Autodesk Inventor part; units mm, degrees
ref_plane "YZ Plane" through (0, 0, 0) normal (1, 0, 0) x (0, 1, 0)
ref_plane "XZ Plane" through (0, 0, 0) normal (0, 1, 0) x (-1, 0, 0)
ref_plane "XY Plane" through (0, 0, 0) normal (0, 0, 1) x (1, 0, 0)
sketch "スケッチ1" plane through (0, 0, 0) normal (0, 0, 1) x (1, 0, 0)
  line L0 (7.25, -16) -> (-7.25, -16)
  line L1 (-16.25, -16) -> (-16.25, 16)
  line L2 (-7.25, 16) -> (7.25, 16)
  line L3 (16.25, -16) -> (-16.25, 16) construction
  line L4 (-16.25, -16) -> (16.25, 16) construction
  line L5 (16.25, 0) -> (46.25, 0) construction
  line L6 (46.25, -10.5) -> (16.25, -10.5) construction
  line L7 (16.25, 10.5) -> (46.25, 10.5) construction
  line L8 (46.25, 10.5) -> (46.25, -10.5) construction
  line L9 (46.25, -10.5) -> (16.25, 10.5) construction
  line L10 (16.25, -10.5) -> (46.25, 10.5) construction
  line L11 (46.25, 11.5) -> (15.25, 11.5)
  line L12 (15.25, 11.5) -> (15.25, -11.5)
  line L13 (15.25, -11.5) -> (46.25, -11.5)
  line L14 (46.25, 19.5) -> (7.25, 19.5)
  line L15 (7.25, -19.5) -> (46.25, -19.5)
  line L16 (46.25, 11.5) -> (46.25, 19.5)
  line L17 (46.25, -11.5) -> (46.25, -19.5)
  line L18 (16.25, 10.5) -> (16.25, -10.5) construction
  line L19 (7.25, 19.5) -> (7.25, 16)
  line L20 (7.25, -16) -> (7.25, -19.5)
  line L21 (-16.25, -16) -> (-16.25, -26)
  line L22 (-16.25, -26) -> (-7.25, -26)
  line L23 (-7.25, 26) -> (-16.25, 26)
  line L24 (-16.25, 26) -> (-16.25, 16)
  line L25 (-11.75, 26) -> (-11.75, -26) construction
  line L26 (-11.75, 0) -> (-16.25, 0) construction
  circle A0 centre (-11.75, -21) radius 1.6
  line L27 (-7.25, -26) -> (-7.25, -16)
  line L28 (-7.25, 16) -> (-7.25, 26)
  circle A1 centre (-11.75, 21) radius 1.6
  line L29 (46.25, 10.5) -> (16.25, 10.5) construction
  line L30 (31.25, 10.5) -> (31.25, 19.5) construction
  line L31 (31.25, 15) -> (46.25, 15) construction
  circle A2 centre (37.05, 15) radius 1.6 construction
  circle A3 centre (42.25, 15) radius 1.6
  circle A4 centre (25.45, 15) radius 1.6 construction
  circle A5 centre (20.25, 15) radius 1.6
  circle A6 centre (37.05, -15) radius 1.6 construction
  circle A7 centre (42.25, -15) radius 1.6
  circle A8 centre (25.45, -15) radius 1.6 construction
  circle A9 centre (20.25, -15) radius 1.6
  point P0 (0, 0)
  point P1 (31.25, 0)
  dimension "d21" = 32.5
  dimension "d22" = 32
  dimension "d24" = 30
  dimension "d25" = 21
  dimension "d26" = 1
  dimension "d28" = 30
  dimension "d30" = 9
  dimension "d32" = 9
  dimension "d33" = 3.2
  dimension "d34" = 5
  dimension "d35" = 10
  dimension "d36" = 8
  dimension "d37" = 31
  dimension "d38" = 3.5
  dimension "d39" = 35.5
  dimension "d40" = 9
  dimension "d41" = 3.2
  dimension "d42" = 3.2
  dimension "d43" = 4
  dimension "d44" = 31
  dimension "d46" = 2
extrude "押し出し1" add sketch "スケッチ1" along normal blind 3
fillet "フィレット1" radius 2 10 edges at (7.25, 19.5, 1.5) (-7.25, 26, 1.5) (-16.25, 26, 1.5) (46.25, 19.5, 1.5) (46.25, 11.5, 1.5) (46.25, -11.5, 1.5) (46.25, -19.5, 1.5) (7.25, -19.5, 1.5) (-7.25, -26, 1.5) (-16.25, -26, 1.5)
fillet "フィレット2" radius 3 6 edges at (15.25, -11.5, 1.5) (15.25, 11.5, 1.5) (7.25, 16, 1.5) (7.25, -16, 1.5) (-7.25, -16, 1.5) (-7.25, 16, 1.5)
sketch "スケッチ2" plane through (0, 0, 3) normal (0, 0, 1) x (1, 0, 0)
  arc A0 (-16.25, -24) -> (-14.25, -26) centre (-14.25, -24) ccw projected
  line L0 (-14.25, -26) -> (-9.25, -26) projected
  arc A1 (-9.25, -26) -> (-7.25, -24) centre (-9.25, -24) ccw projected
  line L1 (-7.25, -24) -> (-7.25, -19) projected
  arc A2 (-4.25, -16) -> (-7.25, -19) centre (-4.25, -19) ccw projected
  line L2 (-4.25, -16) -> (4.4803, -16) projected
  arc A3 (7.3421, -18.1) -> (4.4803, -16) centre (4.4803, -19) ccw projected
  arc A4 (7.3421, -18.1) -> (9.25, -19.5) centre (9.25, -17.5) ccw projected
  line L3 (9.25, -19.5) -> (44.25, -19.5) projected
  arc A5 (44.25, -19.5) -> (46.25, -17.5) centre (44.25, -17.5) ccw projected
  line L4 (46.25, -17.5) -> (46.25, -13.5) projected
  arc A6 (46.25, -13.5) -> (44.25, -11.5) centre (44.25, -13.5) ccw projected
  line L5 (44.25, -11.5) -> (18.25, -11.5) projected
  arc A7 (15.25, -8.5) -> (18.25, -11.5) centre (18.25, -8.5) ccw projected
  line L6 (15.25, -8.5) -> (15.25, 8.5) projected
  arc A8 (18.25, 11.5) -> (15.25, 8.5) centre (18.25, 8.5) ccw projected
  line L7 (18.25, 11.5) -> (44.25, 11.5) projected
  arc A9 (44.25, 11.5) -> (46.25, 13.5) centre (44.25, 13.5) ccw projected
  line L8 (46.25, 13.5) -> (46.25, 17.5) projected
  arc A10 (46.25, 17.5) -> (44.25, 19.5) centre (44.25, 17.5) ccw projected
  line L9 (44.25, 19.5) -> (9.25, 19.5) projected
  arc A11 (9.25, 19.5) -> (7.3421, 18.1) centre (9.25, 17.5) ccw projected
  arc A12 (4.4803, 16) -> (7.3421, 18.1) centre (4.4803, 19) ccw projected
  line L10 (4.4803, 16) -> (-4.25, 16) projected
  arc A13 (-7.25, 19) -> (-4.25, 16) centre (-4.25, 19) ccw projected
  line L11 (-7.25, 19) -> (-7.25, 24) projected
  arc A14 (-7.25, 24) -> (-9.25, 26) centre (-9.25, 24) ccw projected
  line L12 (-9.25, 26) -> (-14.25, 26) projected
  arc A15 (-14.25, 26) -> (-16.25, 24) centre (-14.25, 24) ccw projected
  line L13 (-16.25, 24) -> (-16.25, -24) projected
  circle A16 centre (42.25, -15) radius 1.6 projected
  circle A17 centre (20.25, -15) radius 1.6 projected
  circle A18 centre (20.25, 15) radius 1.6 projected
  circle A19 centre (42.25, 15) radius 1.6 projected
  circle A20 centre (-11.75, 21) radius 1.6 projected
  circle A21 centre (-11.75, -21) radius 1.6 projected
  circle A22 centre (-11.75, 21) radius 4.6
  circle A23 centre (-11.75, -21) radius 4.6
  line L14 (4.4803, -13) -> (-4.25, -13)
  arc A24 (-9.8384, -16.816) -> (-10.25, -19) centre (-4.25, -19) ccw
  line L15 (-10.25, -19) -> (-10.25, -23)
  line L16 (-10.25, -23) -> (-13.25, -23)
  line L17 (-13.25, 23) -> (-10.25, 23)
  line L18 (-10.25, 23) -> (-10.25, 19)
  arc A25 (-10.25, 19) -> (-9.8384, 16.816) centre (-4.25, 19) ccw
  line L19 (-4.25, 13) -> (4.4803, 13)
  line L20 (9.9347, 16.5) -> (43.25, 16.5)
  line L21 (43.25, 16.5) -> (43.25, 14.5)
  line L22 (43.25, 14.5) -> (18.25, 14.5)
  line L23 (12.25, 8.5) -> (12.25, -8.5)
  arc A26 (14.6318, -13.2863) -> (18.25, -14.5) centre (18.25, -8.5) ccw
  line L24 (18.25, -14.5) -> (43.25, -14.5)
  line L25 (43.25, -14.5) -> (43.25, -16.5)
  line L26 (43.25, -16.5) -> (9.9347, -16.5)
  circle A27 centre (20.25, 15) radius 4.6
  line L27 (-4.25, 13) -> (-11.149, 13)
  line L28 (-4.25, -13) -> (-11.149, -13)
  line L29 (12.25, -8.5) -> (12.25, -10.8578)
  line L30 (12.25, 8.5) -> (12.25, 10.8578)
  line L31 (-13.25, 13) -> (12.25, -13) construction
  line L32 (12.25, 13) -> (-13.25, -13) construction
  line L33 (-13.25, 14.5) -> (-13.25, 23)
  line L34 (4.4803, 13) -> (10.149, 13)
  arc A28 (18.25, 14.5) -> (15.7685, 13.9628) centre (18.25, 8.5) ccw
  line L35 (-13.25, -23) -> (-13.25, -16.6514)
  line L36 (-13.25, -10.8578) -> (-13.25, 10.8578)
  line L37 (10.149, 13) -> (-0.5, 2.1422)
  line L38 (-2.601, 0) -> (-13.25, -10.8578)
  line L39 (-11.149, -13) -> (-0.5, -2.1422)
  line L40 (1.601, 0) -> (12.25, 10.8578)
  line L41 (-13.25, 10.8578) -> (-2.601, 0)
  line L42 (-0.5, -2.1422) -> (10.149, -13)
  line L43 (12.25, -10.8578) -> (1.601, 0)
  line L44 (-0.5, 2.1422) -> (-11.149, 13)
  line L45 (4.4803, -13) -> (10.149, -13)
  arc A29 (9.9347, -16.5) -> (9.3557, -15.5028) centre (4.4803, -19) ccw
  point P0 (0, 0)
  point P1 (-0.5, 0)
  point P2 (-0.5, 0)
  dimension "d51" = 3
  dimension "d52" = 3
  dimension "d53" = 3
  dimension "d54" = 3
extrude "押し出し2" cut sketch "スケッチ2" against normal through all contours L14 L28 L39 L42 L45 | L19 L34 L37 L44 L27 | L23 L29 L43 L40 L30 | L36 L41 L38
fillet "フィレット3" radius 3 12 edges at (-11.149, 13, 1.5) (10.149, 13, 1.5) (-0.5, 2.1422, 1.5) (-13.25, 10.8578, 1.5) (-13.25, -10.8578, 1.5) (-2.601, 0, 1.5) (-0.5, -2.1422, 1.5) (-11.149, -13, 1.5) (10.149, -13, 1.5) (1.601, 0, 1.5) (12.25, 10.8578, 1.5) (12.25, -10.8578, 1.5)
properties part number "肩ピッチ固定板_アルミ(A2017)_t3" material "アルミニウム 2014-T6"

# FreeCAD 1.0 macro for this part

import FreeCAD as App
import Part
import Sketcher


def edges_at(feature, points):
    """Names of the edges that pass closest to the given points."""
    edges = feature.Shape.Edges
    near = lambda p: min(range(len(edges)), key=lambda i: edges[i].distToShape(Part.Vertex(*p))[0])
    return sorted({f"Edge{near(p) + 1}" for p in points})


def add_polygon(sketch, points):
    """Adds a closed chain of lines whose ends are joined by coincident constraints."""
    first, n = sketch.GeometryCount, len(points)
    for a, b in zip(points, points[1:] + points[:1]):
        sketch.addGeometry(Part.LineSegment(App.Vector(*a, 0), App.Vector(*b, 0)), False)
    for i in range(n):
        sketch.addConstraint(Sketcher.Constraint("Coincident", first + i, 2, first + (i + 1) % n, 1))

doc = App.newDocument("Part")
body = doc.addObject("PartDesign::Body", "Body")

# Sketch on XY plane
sketch1 = body.newObject("Sketcher::SketchObject", "Sketch")
sketch1.AttachmentSupport = (doc.getObject("XY_Plane"), [""])
sketch1.MapMode = "FlatFace"
add_polygon(sketch1, [(-7.2, -16), (7.2, -16), (7.2, -19.5), (46.2, -19.5), (46.2, -11.5), (15.2, -11.5), (15.2, 11.5), (46.2, 11.5), (46.2, 19.5), (7.2, 19.5), (7.2, 16), (-7.2, 16), (-7.2, 26), (-16.2, 26), (-16.2, -26), (-7.2, -26)])  # lines 0-15
sketch1.addGeometry(Part.Circle(App.Vector(-11.8, -21, 0), App.Vector(0, 0, 1), 1.6), False)  # 16
sketch1.addGeometry(Part.Circle(App.Vector(20.2, -15, 0), App.Vector(0, 0, 1), 1.6), False)  # 17
sketch1.addGeometry(Part.Circle(App.Vector(42.2, -15, 0), App.Vector(0, 0, 1), 1.6), False)  # 18
sketch1.addGeometry(Part.Circle(App.Vector(-11.8, 21, 0), App.Vector(0, 0, 1), 1.6), False)  # 19
sketch1.addGeometry(Part.Circle(App.Vector(20.2, 15, 0), App.Vector(0, 0, 1), 1.6), False)  # 20
sketch1.addGeometry(Part.Circle(App.Vector(42.2, 15, 0), App.Vector(0, 0, 1), 1.6), False)  # 21
sketch1.addConstraint(Sketcher.Constraint("Horizontal", 0))
sketch1.addConstraint(Sketcher.Constraint("Vertical", 1))
sketch1.addConstraint(Sketcher.Constraint("Horizontal", 2))
sketch1.addConstraint(Sketcher.Constraint("Vertical", 3))
sketch1.addConstraint(Sketcher.Constraint("Horizontal", 4))
sketch1.addConstraint(Sketcher.Constraint("Vertical", 5))
sketch1.addConstraint(Sketcher.Constraint("Horizontal", 6))
sketch1.addConstraint(Sketcher.Constraint("Vertical", 7))
sketch1.addConstraint(Sketcher.Constraint("Horizontal", 8))
sketch1.addConstraint(Sketcher.Constraint("Vertical", 9))
sketch1.addConstraint(Sketcher.Constraint("Horizontal", 10))
sketch1.addConstraint(Sketcher.Constraint("Vertical", 11))
sketch1.addConstraint(Sketcher.Constraint("Horizontal", 12))
sketch1.addConstraint(Sketcher.Constraint("Vertical", 13))
sketch1.addConstraint(Sketcher.Constraint("Horizontal", 14))
sketch1.addConstraint(Sketcher.Constraint("Vertical", 15))
sketch1.addConstraint(Sketcher.Constraint("Equal", 16, 17))
sketch1.addConstraint(Sketcher.Constraint("Equal", 17, 18))
sketch1.addConstraint(Sketcher.Constraint("Equal", 18, 19))
sketch1.addConstraint(Sketcher.Constraint("Equal", 19, 20))
sketch1.addConstraint(Sketcher.Constraint("Equal", 20, 21))
sketch1.addConstraint(Sketcher.Constraint("Symmetric", 0, 2, 10, 2, -1, 1))
sketch1.addConstraint(Sketcher.Constraint("Symmetric", 16, 3, 19, 3, -1))
sketch1.addConstraint(Sketcher.Constraint("Symmetric", 17, 3, 20, 3, -1))
sketch1.addConstraint(Sketcher.Constraint("Symmetric", 18, 3, 21, 3, -1))
sketch1.addConstraint(Sketcher.Constraint("Symmetric", 3, 2, 6, 2, -1))
sketch1.addConstraint(Sketcher.Constraint("Symmetric", 1, 2, 8, 2, -1))
sketch1.addConstraint(Sketcher.Constraint("Symmetric", 11, 2, 14, 2, -1))
sketch1.addConstraint(Sketcher.Constraint("Horizontal", 17, 3, 18, 3))
sketch1.addConstraint(Sketcher.Constraint("Diameter", 16, 3.2))
sketch1.addConstraint(Sketcher.Constraint("DistanceX", 4, 2, 4, 1, 31.0))
sketch1.addConstraint(Sketcher.Constraint("DistanceX", 12, 2, 12, 1, 9.0))
sketch1.addConstraint(Sketcher.Constraint("DistanceY", 3, 1, 3, 2, 8.0))
sketch1.addConstraint(Sketcher.Constraint("DistanceY", 11, 1, 11, 2, 10.0))
sketch1.addConstraint(Sketcher.Constraint("DistanceY", 1, 2, 1, 1, 3.5))
sketch1.addConstraint(Sketcher.Constraint("DistanceY", 16, 3, -1, 1, 21.0))
sketch1.addConstraint(Sketcher.Constraint("DistanceX", 16, 3, 17, 3, 32.0))
sketch1.addConstraint(Sketcher.Constraint("DistanceY", 17, 3, 20, 3, 30.0))
sketch1.addConstraint(Sketcher.Constraint("DistanceY", 0, 2, 17, 3, 1.0))
sketch1.addConstraint(Sketcher.Constraint("DistanceX", 18, 3, 2, 2, 4.0))
sketch1.addConstraint(Sketcher.Constraint("DistanceX", 4, 2, 17, 3, 5.0))
sketch1.addConstraint(Sketcher.Constraint("DistanceX", 0, 2, 4, 2, 8.0))
sketch1.addConstraint(Sketcher.Constraint("DistanceX", 0, 1, 0, 2, 14.5))
pad1 = body.newObject("PartDesign::Pad", "Pad")
pad1.Profile = sketch1
pad1.Length = 3
doc.recompute()

fillet = body.newObject("PartDesign::Fillet", "Fillet")
fillet.Base = (pad1, edges_at(pad1, [
    (7.25, 19.5, 1.5),
    (-7.25, 26, 1.5),
    (-16.25, 26, 1.5),
    (46.25, 19.5, 1.5),
    (46.25, 11.5, 1.5),
    (46.25, -11.5, 1.5),
    (46.25, -19.5, 1.5),
    (7.25, -19.5, 1.5),
    (-7.25, -26, 1.5),
    (-16.25, -26, 1.5),
]))
fillet.Radius = 2
doc.recompute()

fillet2 = body.newObject("PartDesign::Fillet", "Fillet001")
fillet2.Base = (fillet, edges_at(fillet, [
    (15.25, -11.5, 1.5),
    (15.25, 11.5, 1.5),
    (7.25, 16, 1.5),
    (7.25, -16, 1.5),
    (-7.25, -16, 1.5),
    (-7.25, 16, 1.5),
]))
fillet2.Radius = 3

# Sketch on XY plane
sketch2 = body.newObject("Sketcher::SketchObject", "Sketch001")
sketch2.AttachmentSupport = (doc.getObject("XY_Plane"), [""])
sketch2.MapMode = "FlatFace"
sketch2.AttachmentOffset = App.Placement(App.Vector(0, 0, 3), App.Rotation())
add_polygon(sketch2, [(-11, -13), (10, -13), (0, -2)])  # lines 0-2
add_polygon(sketch2, [(10, 13), (-11, 13), (0, 2)])  # lines 3-5
add_polygon(sketch2, [(12, -11), (12, 11), (2, 0)])  # lines 6-8
add_polygon(sketch2, [(-13, 11), (-13, -11), (-3, 0)])  # lines 9-11
sketch2.addConstraint(Sketcher.Constraint("Horizontal", 0))
sketch2.addConstraint(Sketcher.Constraint("Horizontal", 3))
sketch2.addConstraint(Sketcher.Constraint("Vertical", 6))
sketch2.addConstraint(Sketcher.Constraint("Vertical", 9))
sketch2.addConstraint(Sketcher.Constraint("Symmetric", 2, 2, 3, 2, -1))
sketch2.addConstraint(Sketcher.Constraint("Symmetric", 1, 2, 4, 2, -1))
sketch2.addConstraint(Sketcher.Constraint("PointOnObject", 7, 2, -1))
sketch2.addConstraint(Sketcher.Constraint("PointOnObject", 10, 2, -1))
sketch2.addConstraint(Sketcher.Constraint("Parallel", 1, 4))
sketch2.addConstraint(Sketcher.Constraint("Parallel", 2, 5))
sketch2.addConstraint(Sketcher.Constraint("Parallel", 5, 7))
sketch2.addConstraint(Sketcher.Constraint("Parallel", 4, 8))
sketch2.addConstraint(Sketcher.Constraint("Parallel", 7, 10))
sketch2.addConstraint(Sketcher.Constraint("Parallel", 8, 11))
sketch2.addConstraint(Sketcher.Constraint("Horizontal", 8, 2, 9, 2))
sketch2.addConstraint(Sketcher.Constraint("Equal", 5, 7))
sketch2.addConstraint(Sketcher.Constraint("DistanceY", 0, 2, -1, 1, 13.0))
sketch2.addConstraint(Sketcher.Constraint("DistanceX", 1, 2, -1, 1, 0.5))
sketch2.addConstraint(Sketcher.Constraint("DistanceX", 0, 1, 0, 2, 21.298))
sketch2.addConstraint(Sketcher.Constraint("DistanceX", -1, 1, 6, 2, 12.25))
sketch2.addConstraint(Sketcher.Constraint("DistanceX", 9, 2, -1, 1, 13.25))
sketch2.addConstraint(Sketcher.Constraint("DistanceY", 6, 1, 6, 2, 21.7156))
pocket1 = body.newObject("PartDesign::Pocket", "Pocket")
pocket1.Profile = sketch2
pocket1.Type = "ThroughAll"
doc.recompute()

fillet3 = body.newObject("PartDesign::Fillet", "Fillet002")
fillet3.Base = (pocket1, edges_at(pocket1, [
    (-11.149, 13, 1.5),
    (10.149, 13, 1.5),
    (-0.5, 2.142, 1.5),
    (-13.25, 10.858, 1.5),
    (-13.25, -10.858, 1.5),
    (-2.601, 0, 1.5),
    (-0.5, -2.142, 1.5),
    (-11.149, -13, 1.5),
    (10.149, -13, 1.5),
    (1.601, 0, 1.5),
    (12.25, 10.858, 1.5),
    (12.25, -10.858, 1.5),
]))
fillet3.Radius = 3

doc.recompute()
